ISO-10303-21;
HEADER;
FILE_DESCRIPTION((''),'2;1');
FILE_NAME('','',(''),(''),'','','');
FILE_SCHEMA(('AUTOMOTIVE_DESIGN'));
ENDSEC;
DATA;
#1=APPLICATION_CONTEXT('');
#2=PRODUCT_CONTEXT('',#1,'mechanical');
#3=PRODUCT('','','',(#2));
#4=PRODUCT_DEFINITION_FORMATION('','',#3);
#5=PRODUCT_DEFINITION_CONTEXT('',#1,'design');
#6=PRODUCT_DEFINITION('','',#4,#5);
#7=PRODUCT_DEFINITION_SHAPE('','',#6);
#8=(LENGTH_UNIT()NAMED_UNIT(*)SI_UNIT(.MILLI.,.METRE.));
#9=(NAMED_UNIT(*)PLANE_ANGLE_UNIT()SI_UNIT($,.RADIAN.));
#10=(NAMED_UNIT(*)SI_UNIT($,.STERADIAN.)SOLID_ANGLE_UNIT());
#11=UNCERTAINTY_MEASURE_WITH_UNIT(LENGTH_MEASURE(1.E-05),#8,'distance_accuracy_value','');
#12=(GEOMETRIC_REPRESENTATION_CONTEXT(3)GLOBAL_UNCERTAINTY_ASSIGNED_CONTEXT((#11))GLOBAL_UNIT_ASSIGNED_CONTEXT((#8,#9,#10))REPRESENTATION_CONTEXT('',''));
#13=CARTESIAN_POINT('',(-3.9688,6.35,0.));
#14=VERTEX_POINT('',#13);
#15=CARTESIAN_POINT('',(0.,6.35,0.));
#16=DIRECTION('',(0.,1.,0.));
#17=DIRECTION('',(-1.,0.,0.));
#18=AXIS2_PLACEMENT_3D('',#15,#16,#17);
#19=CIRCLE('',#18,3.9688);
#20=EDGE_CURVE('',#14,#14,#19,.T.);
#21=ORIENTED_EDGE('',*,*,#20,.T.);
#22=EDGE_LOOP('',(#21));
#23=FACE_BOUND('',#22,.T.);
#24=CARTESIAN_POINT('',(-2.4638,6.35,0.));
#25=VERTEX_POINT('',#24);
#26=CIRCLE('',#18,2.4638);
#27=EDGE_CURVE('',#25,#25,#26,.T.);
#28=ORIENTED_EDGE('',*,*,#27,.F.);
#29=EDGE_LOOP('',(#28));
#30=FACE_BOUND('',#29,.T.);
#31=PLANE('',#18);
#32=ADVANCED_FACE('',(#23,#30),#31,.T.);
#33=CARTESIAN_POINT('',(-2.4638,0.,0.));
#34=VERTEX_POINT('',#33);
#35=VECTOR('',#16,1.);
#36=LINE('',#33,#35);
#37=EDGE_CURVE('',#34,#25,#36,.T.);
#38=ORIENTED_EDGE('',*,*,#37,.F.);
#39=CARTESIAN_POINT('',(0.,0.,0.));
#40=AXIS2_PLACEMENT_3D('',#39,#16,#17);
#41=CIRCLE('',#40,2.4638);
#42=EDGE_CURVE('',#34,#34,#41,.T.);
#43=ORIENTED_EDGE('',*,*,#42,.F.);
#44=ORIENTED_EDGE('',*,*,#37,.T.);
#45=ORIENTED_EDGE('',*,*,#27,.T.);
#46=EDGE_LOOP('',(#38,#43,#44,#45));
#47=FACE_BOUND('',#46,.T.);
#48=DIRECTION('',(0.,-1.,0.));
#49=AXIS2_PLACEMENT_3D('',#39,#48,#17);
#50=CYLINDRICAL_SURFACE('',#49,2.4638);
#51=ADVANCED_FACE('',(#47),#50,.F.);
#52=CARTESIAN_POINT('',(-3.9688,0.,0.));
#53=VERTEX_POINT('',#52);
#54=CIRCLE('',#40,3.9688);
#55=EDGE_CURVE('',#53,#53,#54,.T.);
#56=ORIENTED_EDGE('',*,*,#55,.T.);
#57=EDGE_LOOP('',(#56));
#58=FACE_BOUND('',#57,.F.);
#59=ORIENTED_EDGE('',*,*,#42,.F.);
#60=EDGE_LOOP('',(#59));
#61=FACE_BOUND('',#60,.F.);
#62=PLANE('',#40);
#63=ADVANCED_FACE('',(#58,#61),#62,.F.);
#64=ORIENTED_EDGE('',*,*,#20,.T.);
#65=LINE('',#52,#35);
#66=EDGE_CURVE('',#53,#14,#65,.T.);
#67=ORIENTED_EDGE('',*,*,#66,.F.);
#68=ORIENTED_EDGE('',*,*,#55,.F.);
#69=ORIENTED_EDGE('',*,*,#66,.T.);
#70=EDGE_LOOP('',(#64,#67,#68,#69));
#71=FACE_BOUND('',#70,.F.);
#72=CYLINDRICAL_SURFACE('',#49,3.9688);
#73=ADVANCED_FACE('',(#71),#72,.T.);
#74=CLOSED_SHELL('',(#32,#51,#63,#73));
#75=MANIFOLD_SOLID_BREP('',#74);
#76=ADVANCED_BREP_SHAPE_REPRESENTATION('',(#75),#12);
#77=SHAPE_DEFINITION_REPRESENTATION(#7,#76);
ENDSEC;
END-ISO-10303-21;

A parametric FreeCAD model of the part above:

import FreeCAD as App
import Part
import Sketcher

V = App.Vector
Q = App.Units.Quantity

doc = App.newDocument("Part")
body = doc.addObject("PartDesign::Body", "Body")

# Sketch on XZ plane
sketch1 = body.newObject("Sketcher::SketchObject", "Sketch")
sketch1.AttachmentSupport = (doc.getObject("XZ_Plane"), [""])
sketch1.MapMode = "FlatFace"
sketch1.addGeometry([
    Part.Circle(V(0, 0, 0), V(0, 0, 1), 3.9688),
    Part.Circle(V(0, 0, 0), V(0, 0, 1), 2.4638),
], False)
sketch1.addConstraint([
    Sketcher.Constraint("Coincident", 0, 3, -1, 1),
    Sketcher.Constraint("Coincident", 1, 3, -1, 1),
    Sketcher.Constraint("Diameter", 0, Q("0.3125 in")),
    Sketcher.Constraint("Diameter", 1, Q("0.194 in")),
])
pad1 = body.newObject("PartDesign::Pad", "Pad")
pad1.Profile = sketch1
pad1.Length = Q("0.25 in")
pad1.Reversed = True

doc.recompute()
